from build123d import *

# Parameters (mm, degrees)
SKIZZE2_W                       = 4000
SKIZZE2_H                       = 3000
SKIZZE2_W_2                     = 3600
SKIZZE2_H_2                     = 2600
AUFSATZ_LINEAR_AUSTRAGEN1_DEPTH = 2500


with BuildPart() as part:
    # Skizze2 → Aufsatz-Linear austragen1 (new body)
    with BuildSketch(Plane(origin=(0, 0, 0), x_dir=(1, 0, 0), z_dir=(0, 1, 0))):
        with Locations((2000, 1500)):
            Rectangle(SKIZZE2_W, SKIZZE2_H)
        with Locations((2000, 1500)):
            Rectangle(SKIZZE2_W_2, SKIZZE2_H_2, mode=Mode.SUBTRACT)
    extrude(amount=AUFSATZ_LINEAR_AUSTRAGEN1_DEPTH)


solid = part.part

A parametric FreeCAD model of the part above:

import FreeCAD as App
import Part
import Sketcher
from FreeCAD import Vector

doc = App.newDocument("Part")
body = doc.addObject("PartDesign::Body", "Body")

# Sketch on XZ plane
sketch1 = body.newObject("Sketcher::SketchObject", "Sketch")
sketch1.AttachmentSupport = (doc.getObject("XZ_Plane"), [""])
sketch1.MapMode = "FlatFace"
sketch1.addGeometry(Part.LineSegment(Vector(0, -3000, 0), Vector(0, 0, 0)), False)
sketch1.addGeometry(Part.LineSegment(Vector(0, 0, 0), Vector(4000, 0, 0)), False)
sketch1.addGeometry(Part.LineSegment(Vector(4000, 0, 0), Vector(4000, -3000, 0)), False)
sketch1.addGeometry(Part.LineSegment(Vector(4000, -3000, 0), Vector(0, -3000, 0)), False)
sketch1.addGeometry(Part.LineSegment(Vector(3800, -200, 0), Vector(200, -200, 0)), False)
sketch1.addGeometry(Part.LineSegment(Vector(200, -200, 0), Vector(200, -2800, 0)), False)
sketch1.addGeometry(Part.LineSegment(Vector(200, -2800, 0), Vector(3800, -2800, 0)), False)
sketch1.addGeometry(Part.LineSegment(Vector(3800, -2800, 0), Vector(3800, -200, 0)), False)
sketch1.addConstraint(Sketcher.Constraint("Coincident", 0, 2, 1, 1))
sketch1.addConstraint(Sketcher.Constraint("Coincident", 1, 2, 2, 1))
sketch1.addConstraint(Sketcher.Constraint("Coincident", 2, 2, 3, 1))
sketch1.addConstraint(Sketcher.Constraint("Coincident", 3, 2, 0, 1))
sketch1.addConstraint(Sketcher.Constraint("Coincident", 4, 2, 5, 1))
sketch1.addConstraint(Sketcher.Constraint("Coincident", 5, 2, 6, 1))
sketch1.addConstraint(Sketcher.Constraint("Coincident", 6, 2, 7, 1))
sketch1.addConstraint(Sketcher.Constraint("Coincident", 7, 2, 4, 1))
sketch1.addConstraint(Sketcher.Constraint("Vertical", 0))
sketch1.addConstraint(Sketcher.Constraint("Horizontal", 1))
sketch1.addConstraint(Sketcher.Constraint("Vertical", 2))
sketch1.addConstraint(Sketcher.Constraint("Horizontal", 3))
sketch1.addConstraint(Sketcher.Constraint("Horizontal", 4))
sketch1.addConstraint(Sketcher.Constraint("Vertical", 5))
sketch1.addConstraint(Sketcher.Constraint("Horizontal", 6))
sketch1.addConstraint(Sketcher.Constraint("Vertical", 7))
sketch1.addConstraint(Sketcher.Constraint("Coincident", 0, 2, -1, 1))
sketch1.addConstraint(Sketcher.Constraint("DistanceX", 1, 1, 1, 2, 4000.0))
sketch1.addConstraint(Sketcher.Constraint("DistanceX", 4, 2, 4, 1, 3600.0))
sketch1.addConstraint(Sketcher.Constraint("DistanceY", 0, 1, 0, 2, 3000.0))
sketch1.addConstraint(Sketcher.Constraint("DistanceY", 5, 2, 5, 1, 2600.0))
sketch1.addConstraint(Sketcher.Constraint("DistanceX", -1, 1, 4, 2, 200.0))
sketch1.addConstraint(Sketcher.Constraint("DistanceY", 4, 2, -1, 1, 200.0))
pad1 = body.newObject("PartDesign::Pad", "Pad")
pad1.Profile = sketch1
pad1.Length = 2500
pad1.Reversed = True

doc.recompute()
